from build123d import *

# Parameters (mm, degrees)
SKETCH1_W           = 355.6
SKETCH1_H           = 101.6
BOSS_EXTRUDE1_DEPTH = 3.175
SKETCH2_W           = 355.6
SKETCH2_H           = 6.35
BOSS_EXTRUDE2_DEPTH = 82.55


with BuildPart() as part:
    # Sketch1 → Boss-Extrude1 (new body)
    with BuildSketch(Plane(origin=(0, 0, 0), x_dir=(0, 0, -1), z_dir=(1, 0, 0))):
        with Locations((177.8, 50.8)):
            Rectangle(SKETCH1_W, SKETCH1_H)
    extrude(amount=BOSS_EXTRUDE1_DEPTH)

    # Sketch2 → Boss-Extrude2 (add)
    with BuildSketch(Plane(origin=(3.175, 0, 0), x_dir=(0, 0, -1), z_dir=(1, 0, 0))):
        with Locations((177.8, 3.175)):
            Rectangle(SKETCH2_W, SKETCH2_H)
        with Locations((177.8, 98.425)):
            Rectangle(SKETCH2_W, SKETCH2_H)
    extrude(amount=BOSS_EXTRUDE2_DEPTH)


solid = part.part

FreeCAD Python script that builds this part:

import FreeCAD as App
import Part
import Sketcher

V = App.Vector
Q = App.Units.Quantity


def add_polygon(sketch, points):
    """Adds a closed chain of lines whose ends are joined by coincident constraints."""
    first, n = sketch.GeometryCount, len(points)
    for a, b in zip(points, points[1:] + points[:1]):
        sketch.addGeometry(Part.LineSegment(App.Vector(*a, 0), App.Vector(*b, 0)), False)
    for i in range(n):
        sketch.addConstraint(Sketcher.Constraint("Coincident", first + i, 2, first + (i + 1) % n, 1))

doc = App.newDocument("Part")
body = doc.addObject("PartDesign::Body", "Body")

# Sketch on YZ plane
sketch1 = body.newObject("Sketcher::SketchObject", "Sketch")
sketch1.AttachmentSupport = (doc.getObject("YZ_Plane"), [""])
sketch1.MapMode = "FlatFace"
add_polygon(sketch1, [(102, 0), (0, 0), (0, -356), (102, -356)])  # lines 0-3
sketch1.addConstraint(Sketcher.Constraint("Horizontal", 0))
sketch1.addConstraint(Sketcher.Constraint("Vertical", 1))
sketch1.addConstraint(Sketcher.Constraint("Horizontal", 2))
sketch1.addConstraint(Sketcher.Constraint("Vertical", 3))
sketch1.addConstraint(Sketcher.Constraint("Coincident", 0, 2, -1, 1))
sketch1.addConstraint(Sketcher.Constraint("DistanceX", 0, 2, 0, 1, Q("4 in")))
sketch1.addConstraint(Sketcher.Constraint("DistanceY", 1, 2, 1, 1, Q("14 in")))
pad1 = body.newObject("PartDesign::Pad", "Pad")
pad1.Profile = sketch1
pad1.Length = Q("0.125 in")

# Sketch on YZ plane
sketch2 = body.newObject("Sketcher::SketchObject", "Sketch001")
sketch2.AttachmentSupport = (doc.getObject("YZ_Plane"), [""])
sketch2.MapMode = "FlatFace"
sketch2.AttachmentOffset = App.Placement(V(0, 0, 0.125 * 25.4), App.Rotation())
add_polygon(sketch2, [(6, 0), (0, 0), (0, -356), (6, -356)])  # lines 0-3
add_polygon(sketch2, [(102, 0), (95, 0), (95, -356), (102, -356)])  # lines 4-7
sketch2.addConstraint(Sketcher.Constraint("Horizontal", 0))
sketch2.addConstraint(Sketcher.Constraint("Vertical", 1))
sketch2.addConstraint(Sketcher.Constraint("Horizontal", 2))
sketch2.addConstraint(Sketcher.Constraint("Vertical", 3))
sketch2.addConstraint(Sketcher.Constraint("Horizontal", 4))
sketch2.addConstraint(Sketcher.Constraint("Vertical", 5))
sketch2.addConstraint(Sketcher.Constraint("Horizontal", 6))
sketch2.addConstraint(Sketcher.Constraint("Vertical", 7))
sketch2.addConstraint(Sketcher.Constraint("Coincident", 0, 2, -1, 1))
sketch2.addConstraint(Sketcher.Constraint("PointOnObject", 4, 2, -1))
sketch2.addConstraint(Sketcher.Constraint("Horizontal", 2, 2, 5, 2))
sketch2.addConstraint(Sketcher.Constraint("Equal", 2, 4))
sketch2.addConstraint(Sketcher.Constraint("DistanceY", 1, 2, 1, 1, Q("14 in")))
sketch2.addConstraint(Sketcher.Constraint("DistanceX", -1, 1, 6, 2, Q("4 in")))
sketch2.addConstraint(Sketcher.Constraint("DistanceX", 0, 2, 0, 1, Q("0.25 in")))
pad2 = body.newObject("PartDesign::Pad", "Pad001")
pad2.Profile = sketch2
pad2.Length = Q("3.25 in")

doc.recompute()
